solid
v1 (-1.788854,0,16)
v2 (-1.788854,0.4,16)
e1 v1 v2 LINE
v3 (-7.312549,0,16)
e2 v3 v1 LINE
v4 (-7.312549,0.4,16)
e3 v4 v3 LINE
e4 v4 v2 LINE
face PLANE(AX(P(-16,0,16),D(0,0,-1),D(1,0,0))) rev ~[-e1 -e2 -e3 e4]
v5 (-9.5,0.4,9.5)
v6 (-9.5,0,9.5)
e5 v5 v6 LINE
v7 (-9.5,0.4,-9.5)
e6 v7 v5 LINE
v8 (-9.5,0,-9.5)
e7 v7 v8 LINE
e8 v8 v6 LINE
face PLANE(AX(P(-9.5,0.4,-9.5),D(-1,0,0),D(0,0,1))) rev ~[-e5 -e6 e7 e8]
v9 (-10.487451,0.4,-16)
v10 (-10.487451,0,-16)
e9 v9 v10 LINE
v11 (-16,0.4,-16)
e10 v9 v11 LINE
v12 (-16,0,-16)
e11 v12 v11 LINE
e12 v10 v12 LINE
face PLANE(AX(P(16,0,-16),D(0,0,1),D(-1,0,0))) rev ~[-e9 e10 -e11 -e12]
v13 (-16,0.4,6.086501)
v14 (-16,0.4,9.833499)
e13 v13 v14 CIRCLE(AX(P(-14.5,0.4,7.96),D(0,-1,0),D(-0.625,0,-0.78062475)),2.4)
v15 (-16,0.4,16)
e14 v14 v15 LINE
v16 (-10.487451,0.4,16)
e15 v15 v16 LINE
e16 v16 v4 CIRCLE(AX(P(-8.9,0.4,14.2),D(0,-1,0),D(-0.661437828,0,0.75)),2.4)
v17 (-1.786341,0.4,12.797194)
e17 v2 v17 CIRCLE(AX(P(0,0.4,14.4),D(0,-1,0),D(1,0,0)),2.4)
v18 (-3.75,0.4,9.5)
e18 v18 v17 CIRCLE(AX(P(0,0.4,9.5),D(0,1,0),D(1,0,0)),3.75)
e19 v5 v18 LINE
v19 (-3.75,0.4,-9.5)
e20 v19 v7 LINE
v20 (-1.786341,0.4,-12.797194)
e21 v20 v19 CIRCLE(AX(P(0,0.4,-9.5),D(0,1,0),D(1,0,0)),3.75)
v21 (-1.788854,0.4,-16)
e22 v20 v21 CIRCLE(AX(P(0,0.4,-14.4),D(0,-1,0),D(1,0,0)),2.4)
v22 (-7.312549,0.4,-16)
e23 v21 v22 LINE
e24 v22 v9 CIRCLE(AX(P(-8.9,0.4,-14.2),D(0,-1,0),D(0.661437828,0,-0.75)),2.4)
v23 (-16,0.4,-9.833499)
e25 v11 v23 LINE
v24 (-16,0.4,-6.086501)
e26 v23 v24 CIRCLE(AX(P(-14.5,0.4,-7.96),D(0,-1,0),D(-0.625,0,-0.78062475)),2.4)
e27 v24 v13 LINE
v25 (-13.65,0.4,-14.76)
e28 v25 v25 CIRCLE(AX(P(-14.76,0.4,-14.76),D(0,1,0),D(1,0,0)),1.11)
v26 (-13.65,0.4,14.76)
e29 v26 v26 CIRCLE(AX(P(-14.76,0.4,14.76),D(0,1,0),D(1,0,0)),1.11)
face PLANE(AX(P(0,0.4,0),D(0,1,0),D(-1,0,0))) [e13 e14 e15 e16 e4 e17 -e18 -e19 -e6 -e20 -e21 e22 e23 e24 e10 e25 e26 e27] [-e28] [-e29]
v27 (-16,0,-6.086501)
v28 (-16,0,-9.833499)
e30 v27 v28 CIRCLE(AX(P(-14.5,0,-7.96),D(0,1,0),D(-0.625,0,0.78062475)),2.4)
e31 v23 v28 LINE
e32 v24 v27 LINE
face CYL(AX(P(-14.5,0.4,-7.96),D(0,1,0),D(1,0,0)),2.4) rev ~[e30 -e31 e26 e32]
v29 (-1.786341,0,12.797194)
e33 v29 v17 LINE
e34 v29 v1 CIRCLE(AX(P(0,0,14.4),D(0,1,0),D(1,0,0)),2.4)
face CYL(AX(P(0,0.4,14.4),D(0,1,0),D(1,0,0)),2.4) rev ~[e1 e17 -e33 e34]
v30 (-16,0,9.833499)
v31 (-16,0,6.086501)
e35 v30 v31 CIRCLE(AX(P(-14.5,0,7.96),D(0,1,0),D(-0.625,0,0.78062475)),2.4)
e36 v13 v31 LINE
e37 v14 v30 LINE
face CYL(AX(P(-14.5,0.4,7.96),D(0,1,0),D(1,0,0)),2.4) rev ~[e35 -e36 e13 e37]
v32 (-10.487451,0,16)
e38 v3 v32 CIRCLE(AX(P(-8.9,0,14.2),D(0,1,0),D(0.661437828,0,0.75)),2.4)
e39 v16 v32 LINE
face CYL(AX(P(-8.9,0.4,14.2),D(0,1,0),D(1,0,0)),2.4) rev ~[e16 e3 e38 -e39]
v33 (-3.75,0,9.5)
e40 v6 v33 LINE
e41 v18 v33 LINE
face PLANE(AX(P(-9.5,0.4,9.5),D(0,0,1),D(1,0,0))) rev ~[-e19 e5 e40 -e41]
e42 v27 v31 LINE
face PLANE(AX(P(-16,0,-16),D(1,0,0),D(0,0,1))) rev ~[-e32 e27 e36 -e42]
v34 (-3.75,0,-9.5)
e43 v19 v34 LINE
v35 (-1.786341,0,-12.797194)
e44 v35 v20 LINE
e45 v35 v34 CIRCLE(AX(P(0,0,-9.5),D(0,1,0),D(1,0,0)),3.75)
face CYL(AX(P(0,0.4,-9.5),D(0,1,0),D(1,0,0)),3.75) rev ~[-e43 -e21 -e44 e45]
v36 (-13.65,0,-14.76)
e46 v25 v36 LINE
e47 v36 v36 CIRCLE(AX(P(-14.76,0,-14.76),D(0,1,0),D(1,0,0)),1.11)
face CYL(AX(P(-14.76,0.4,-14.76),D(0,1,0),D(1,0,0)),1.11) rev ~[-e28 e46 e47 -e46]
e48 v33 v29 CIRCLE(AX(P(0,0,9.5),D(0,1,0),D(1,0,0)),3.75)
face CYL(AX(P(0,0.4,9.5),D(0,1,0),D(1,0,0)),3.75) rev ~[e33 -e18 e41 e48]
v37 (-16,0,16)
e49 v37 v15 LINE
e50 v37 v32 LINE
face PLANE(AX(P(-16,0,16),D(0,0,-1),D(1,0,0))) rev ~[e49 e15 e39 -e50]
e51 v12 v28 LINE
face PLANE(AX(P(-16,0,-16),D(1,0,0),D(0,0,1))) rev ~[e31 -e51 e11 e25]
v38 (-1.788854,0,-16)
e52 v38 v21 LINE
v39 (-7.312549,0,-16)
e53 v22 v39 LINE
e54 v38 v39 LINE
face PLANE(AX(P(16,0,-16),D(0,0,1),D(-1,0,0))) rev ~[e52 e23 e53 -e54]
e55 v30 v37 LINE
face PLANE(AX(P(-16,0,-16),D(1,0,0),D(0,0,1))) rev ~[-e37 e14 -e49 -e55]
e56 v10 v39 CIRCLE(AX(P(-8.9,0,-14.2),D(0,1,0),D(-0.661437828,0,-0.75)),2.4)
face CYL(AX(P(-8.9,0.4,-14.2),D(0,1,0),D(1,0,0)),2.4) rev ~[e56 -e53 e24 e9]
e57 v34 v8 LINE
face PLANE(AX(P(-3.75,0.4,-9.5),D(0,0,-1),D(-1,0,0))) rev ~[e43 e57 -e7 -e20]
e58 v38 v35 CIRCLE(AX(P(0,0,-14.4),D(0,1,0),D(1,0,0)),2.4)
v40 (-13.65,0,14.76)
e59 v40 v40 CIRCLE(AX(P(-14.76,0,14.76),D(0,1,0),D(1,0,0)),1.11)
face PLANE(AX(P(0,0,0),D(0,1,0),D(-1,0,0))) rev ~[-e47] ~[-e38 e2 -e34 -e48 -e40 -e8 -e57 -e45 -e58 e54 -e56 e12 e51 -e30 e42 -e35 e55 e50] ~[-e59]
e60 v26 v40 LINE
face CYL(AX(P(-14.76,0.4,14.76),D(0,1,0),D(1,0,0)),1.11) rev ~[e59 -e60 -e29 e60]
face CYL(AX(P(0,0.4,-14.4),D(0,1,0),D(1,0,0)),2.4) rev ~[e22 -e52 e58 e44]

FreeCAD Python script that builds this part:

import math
import FreeCAD as App
import Part
import Sketcher

V = App.Vector


def add_polygon(sketch, points):
    """Adds a closed chain of lines whose ends are joined by coincident constraints."""
    first, n = sketch.GeometryCount, len(points)
    for a, b in zip(points, points[1:] + points[:1]):
        sketch.addGeometry(Part.LineSegment(App.Vector(*a, 0), App.Vector(*b, 0)), False)
    for i in range(n):
        sketch.addConstraint(Sketcher.Constraint("Coincident", first + i, 2, first + (i + 1) % n, 1))

doc = App.newDocument("Part")
body = doc.addObject("PartDesign::Body", "Body")

# Sketch on XZ plane
sketch1 = body.newObject("Sketcher::SketchObject", "Sketch")
sketch1.AttachmentSupport = (doc.getObject("XZ_Plane"), [""])
sketch1.MapMode = "FlatFace"
add_polygon(sketch1, [(-16, -16), (-16, 16), (16, 16), (16, -16)])  # lines 0-3
sketch1.addConstraint(Sketcher.Constraint("Vertical", 0))
sketch1.addConstraint(Sketcher.Constraint("Horizontal", 1))
sketch1.addConstraint(Sketcher.Constraint("Vertical", 2))
sketch1.addConstraint(Sketcher.Constraint("Horizontal", 3))
sketch1.addConstraint(Sketcher.Constraint("Symmetric", 0, 2, 2, 2, -1, 1))
sketch1.addConstraint(Sketcher.Constraint("Equal", 3, 0))
sketch1.addConstraint(Sketcher.Constraint("DistanceX", 1, 1, 1, 2, 32.0))
pad1 = body.newObject("PartDesign::Pad", "Pad")
pad1.Profile = sketch1
pad1.Length = 0.4
pad1.Reversed = True

# Sketch on XZ plane
sketch2 = body.newObject("Sketcher::SketchObject", "Sketch001")
sketch2.AttachmentSupport = (doc.getObject("XZ_Plane"), [""])
sketch2.MapMode = "FlatFace"
sketch2.AttachmentOffset = App.Placement(V(0, 0, -0.4), App.Rotation())
sketch2.addGeometry(Part.LineSegment(V(-9.5, 9.5, 0), V(-3.8, 9.5, 0)), False)
sketch2.addGeometry(Part.ArcOfCircle(Part.Circle(V(0, 9.5, 0), V(0, 0, 1), 3.8), math.radians(0), math.radians(180)), False)
sketch2.addGeometry(Part.LineSegment(V(3.8, 9.5, 0), V(9.5, 9.5, 0)), False)
sketch2.addGeometry(Part.LineSegment(V(9.5, 9.5, 0), V(9.5, -9.5, 0)), False)
sketch2.addGeometry(Part.LineSegment(V(9.5, -9.5, 0), V(3.8, -9.5, 0)), False)
sketch2.addGeometry(Part.ArcOfCircle(Part.Circle(V(0, -9.5, 0), V(0, 0, 1), 3.8), math.radians(180), math.radians(360)), False)
sketch2.addGeometry(Part.LineSegment(V(-3.8, -9.5, 0), V(-9.5, -9.5, 0)), False)
sketch2.addGeometry(Part.LineSegment(V(-9.5, -9.5, 0), V(-9.5, 9.5, 0)), False)
sketch2.addConstraint(Sketcher.Constraint("Coincident", 0, 2, 1, 2))
sketch2.addConstraint(Sketcher.Constraint("Coincident", 1, 1, 2, 1))
sketch2.addConstraint(Sketcher.Constraint("Coincident", 2, 2, 3, 1))
sketch2.addConstraint(Sketcher.Constraint("Coincident", 3, 2, 4, 1))
sketch2.addConstraint(Sketcher.Constraint("Coincident", 4, 2, 5, 2))
sketch2.addConstraint(Sketcher.Constraint("Coincident", 5, 1, 6, 1))
sketch2.addConstraint(Sketcher.Constraint("Coincident", 6, 2, 7, 1))
sketch2.addConstraint(Sketcher.Constraint("Coincident", 7, 2, 0, 1))
sketch2.addConstraint(Sketcher.Constraint("Horizontal", 0))
sketch2.addConstraint(Sketcher.Constraint("Horizontal", 2))
sketch2.addConstraint(Sketcher.Constraint("Vertical", 3))
sketch2.addConstraint(Sketcher.Constraint("Horizontal", 4))
sketch2.addConstraint(Sketcher.Constraint("Horizontal", 6))
sketch2.addConstraint(Sketcher.Constraint("Vertical", 7))
sketch2.addConstraint(Sketcher.Constraint("Equal", 1, 5))
sketch2.addConstraint(Sketcher.Constraint("Symmetric", 1, 3, 5, 3, -1, 1))
sketch2.addConstraint(Sketcher.Constraint("Symmetric", 2, 2, 6, 2, -1, 1))
sketch2.addConstraint(Sketcher.Constraint("Symmetric", 0, 2, 1, 1, -2))
sketch2.addConstraint(Sketcher.Constraint("Horizontal", 1, 3, 0, 2))
sketch2.addConstraint(Sketcher.Constraint("Horizontal", 5, 3, 3, 2))
sketch2.addConstraint(Sketcher.Constraint("DistanceY", 3, 2, 3, 1, 19.0))
sketch2.addConstraint(Sketcher.Constraint("Radius", 1, 3.75))
sketch2.addConstraint(Sketcher.Constraint("DistanceX", 6, 2, 3, 2, 19.0))
pocket1 = body.newObject("PartDesign::Pocket", "Pocket")
pocket1.Profile = sketch2
pocket1.Length = 0.4
pocket1.Reversed = True

# Sketch on XZ plane
sketch3 = body.newObject("Sketcher::SketchObject", "Sketch002")
sketch3.AttachmentSupport = (doc.getObject("XZ_Plane"), [""])
sketch3.MapMode = "FlatFace"
sketch3.AttachmentOffset = App.Placement(V(0, 0, -0.4), App.Rotation())
add_polygon(sketch3, [(0, -16), (0, 16), (16, 16), (16, -16)])  # lines 0-3
sketch3.addConstraint(Sketcher.Constraint("Vertical", 0))
sketch3.addConstraint(Sketcher.Constraint("Horizontal", 1))
sketch3.addConstraint(Sketcher.Constraint("Vertical", 2))
sketch3.addConstraint(Sketcher.Constraint("Horizontal", 3))
sketch3.addConstraint(Sketcher.Constraint("Symmetric", 0, 2, 3, 2, -1, 1))
sketch3.addConstraint(Sketcher.Constraint("DistanceX", 1, 1, 1, 2, 16.0))
sketch3.addConstraint(Sketcher.Constraint("DistanceY", 0, 1, 0, 2, 32.0))
pocket2 = body.newObject("PartDesign::Pocket", "Pocket001")
pocket2.Profile = sketch3
pocket2.Length = 0.4
pocket2.Reversed = True

# Sketch on XZ plane
sketch4 = body.newObject("Sketcher::SketchObject", "Sketch003")
sketch4.AttachmentSupport = (doc.getObject("XZ_Plane"), [""])
sketch4.MapMode = "FlatFace"
sketch4.AttachmentOffset = App.Placement(V(0, 0, -0.4), App.Rotation())
sketch4.addGeometry(Part.Circle(V(-14.8, 14.8, 0), V(0, 0, 1), 1.1), False)
sketch4.addGeometry(Part.Circle(V(-14.8, -14.8, 0), V(0, 0, 1), 1.1), False)
sketch4.addGeometry(Part.Circle(V(0, 14.4, 0), V(0, 0, 1), 2.4), False)
sketch4.addGeometry(Part.ArcOfCircle(Part.Circle(V(-8.9, 14.2, 0), V(0, 0, 1), 2.4), math.radians(131), math.radians(409)), False)
sketch4.addGeometry(Part.LineSegment(V(-10.5, 16, 0), V(-7.3, 16, 0)), False)
sketch4.addGeometry(Part.ArcOfCircle(Part.Circle(V(-14.5, 8, 0), V(0, 0, 1), 2.4), math.radians(-129), math.radians(129)), False)
sketch4.addGeometry(Part.LineSegment(V(-16, 6.1, 0), V(-16, 9.8, 0)), False)
sketch4.addGeometry(Part.ArcOfCircle(Part.Circle(V(-14.5, -8, 0), V(0, 0, 1), 2.4), math.radians(-129), math.radians(129)), False)
sketch4.addGeometry(Part.LineSegment(V(-16, -9.8, 0), V(-16, -6.1, 0)), False)
sketch4.addGeometry(Part.Circle(V(0, -14.4, 0), V(0, 0, 1), 2.4), False)
sketch4.addGeometry(Part.LineSegment(V(-7.3, -16, 0), V(-10.5, -16, 0)), False)
sketch4.addGeometry(Part.ArcOfCircle(Part.Circle(V(-8.9, -14.2, 0), V(0, 0, 1), 2.4), math.radians(-49), math.radians(229)), False)
sketch4.addConstraint(Sketcher.Constraint("Coincident", 3, 1, 4, 1))
sketch4.addConstraint(Sketcher.Constraint("Coincident", 4, 2, 3, 2))
sketch4.addConstraint(Sketcher.Constraint("Coincident", 5, 1, 6, 1))
sketch4.addConstraint(Sketcher.Constraint("Coincident", 6, 2, 5, 2))
sketch4.addConstraint(Sketcher.Constraint("Coincident", 7, 1, 8, 1))
sketch4.addConstraint(Sketcher.Constraint("Coincident", 8, 2, 7, 2))
sketch4.addConstraint(Sketcher.Constraint("Coincident", 10, 1, 11, 1))
sketch4.addConstraint(Sketcher.Constraint("Coincident", 11, 2, 10, 2))
sketch4.addConstraint(Sketcher.Constraint("Horizontal", 4))
sketch4.addConstraint(Sketcher.Constraint("Vertical", 6))
sketch4.addConstraint(Sketcher.Constraint("Vertical", 8))
sketch4.addConstraint(Sketcher.Constraint("Horizontal", 10))
sketch4.addConstraint(Sketcher.Constraint("Equal", 0, 1))
sketch4.addConstraint(Sketcher.Constraint("Equal", 2, 3))
sketch4.addConstraint(Sketcher.Constraint("Equal", 3, 5))
sketch4.addConstraint(Sketcher.Constraint("Equal", 5, 7))
sketch4.addConstraint(Sketcher.Constraint("Equal", 7, 9))
sketch4.addConstraint(Sketcher.Constraint("Equal", 9, 11))
sketch4.addConstraint(Sketcher.Constraint("Symmetric", 2, 3, 9, 3, -1, 1))
sketch4.addConstraint(Sketcher.Constraint("Symmetric", 0, 3, 1, 3, -1))
sketch4.addConstraint(Sketcher.Constraint("Symmetric", 5, 3, 7, 3, -1))
sketch4.addConstraint(Sketcher.Constraint("Symmetric", 3, 3, 11, 3, -1))
sketch4.addConstraint(Sketcher.Constraint("PointOnObject", 2, 3, -2))
sketch4.addConstraint(Sketcher.Constraint("Vertical", 6, 2, 7, 1))
sketch4.addConstraint(Sketcher.Constraint("Vertical", 4, 2, 10, 1))
sketch4.addConstraint(Sketcher.Constraint("Diameter", 2, 4.8))
sketch4.addConstraint(Sketcher.Constraint("Diameter", 0, 2.22))
sketch4.addConstraint(Sketcher.Constraint("DistanceY", 3, 3, 3, 1, 1.8))
sketch4.addConstraint(Sketcher.Constraint("DistanceY", 2, 3, 3, 1, 1.6))
sketch4.addConstraint(Sketcher.Constraint("DistanceX", 5, 1, 5, 3, 1.5))
sketch4.addConstraint(Sketcher.Constraint("DistanceX", 5, 1, 3, 3, 7.1))
sketch4.addConstraint(Sketcher.Constraint("DistanceY", 0, 3, 3, 1, 1.24))
sketch4.addConstraint(Sketcher.Constraint("DistanceY", 5, 3, 3, 1, 8.04))
sketch4.addConstraint(Sketcher.Constraint("DistanceX", 5, 1, 0, 3, 1.24))
sketch4.addConstraint(Sketcher.Constraint("DistanceY", -1, 1, 3, 1, 16.0))
sketch4.addConstraint(Sketcher.Constraint("DistanceX", 5, 1, -1, 1, 16.0))
pocket3 = body.newObject("PartDesign::Pocket", "Pocket002")
pocket3.Profile = sketch4
pocket3.Length = 0.4
pocket3.Reversed = True

doc.recompute()
